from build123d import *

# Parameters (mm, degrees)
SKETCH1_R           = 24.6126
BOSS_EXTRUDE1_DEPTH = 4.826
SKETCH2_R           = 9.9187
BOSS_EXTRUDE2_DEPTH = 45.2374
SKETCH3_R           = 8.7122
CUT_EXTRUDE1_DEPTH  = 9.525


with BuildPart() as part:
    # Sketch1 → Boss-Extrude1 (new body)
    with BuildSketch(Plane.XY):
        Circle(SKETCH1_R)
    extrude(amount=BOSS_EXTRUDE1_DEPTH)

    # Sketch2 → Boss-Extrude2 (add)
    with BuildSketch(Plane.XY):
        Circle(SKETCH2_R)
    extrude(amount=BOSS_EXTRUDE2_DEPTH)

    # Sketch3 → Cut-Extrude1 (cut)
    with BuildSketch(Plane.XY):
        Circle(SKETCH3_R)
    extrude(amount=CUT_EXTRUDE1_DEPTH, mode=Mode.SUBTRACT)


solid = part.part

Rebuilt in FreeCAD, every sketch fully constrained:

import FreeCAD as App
import Part
import Sketcher

V = App.Vector
Q = App.Units.Quantity

doc = App.newDocument("Part")
body = doc.addObject("PartDesign::Body", "Body")

# Sketch on XY plane
sketch1 = body.newObject("Sketcher::SketchObject", "Sketch")
sketch1.AttachmentSupport = (doc.getObject("XY_Plane"), [""])
sketch1.MapMode = "FlatFace"
sketch1.addGeometry(Part.Circle(V(0, 0, 0), V(0, 0, 1), 25), False)
sketch1.addConstraint([
    Sketcher.Constraint("Coincident", 0, 3, -1, 1),
    Sketcher.Constraint("Diameter", 0, Q("1.938 in")),
])
pad1 = body.newObject("PartDesign::Pad", "Pad")
pad1.Profile = sketch1
pad1.Length = Q("0.19 in")

# Sketch on XY plane
sketch2 = body.newObject("Sketcher::SketchObject", "Sketch001")
sketch2.AttachmentSupport = (doc.getObject("XY_Plane"), [""])
sketch2.MapMode = "FlatFace"
sketch2.addGeometry(Part.Circle(V(0, 0, 0), V(0, 0, 1), 10), False)
sketch2.addConstraint([
    Sketcher.Constraint("Coincident", 0, 3, -1, 1),
    Sketcher.Constraint("Diameter", 0, Q("0.781 in")),
])
pad2 = body.newObject("PartDesign::Pad", "Pad001")
pad2.Profile = sketch2
pad2.Length = Q("1.781 in")

# Sketch on XY plane
sketch3 = body.newObject("Sketcher::SketchObject", "Sketch002")
sketch3.AttachmentSupport = (doc.getObject("XY_Plane"), [""])
sketch3.MapMode = "FlatFace"
sketch3.addGeometry(Part.Circle(V(0, 0, 0), V(0, 0, 1), 9), False)
sketch3.addConstraint([
    Sketcher.Constraint("Coincident", 0, 3, -1, 1),
    Sketcher.Constraint("Diameter", 0, Q("0.686 in")),
])
pocket1 = body.newObject("PartDesign::Pocket", "Pocket")
pocket1.Profile = sketch3
pocket1.Length = Q("0.375 in")
pocket1.Reversed = True

doc.recompute()
